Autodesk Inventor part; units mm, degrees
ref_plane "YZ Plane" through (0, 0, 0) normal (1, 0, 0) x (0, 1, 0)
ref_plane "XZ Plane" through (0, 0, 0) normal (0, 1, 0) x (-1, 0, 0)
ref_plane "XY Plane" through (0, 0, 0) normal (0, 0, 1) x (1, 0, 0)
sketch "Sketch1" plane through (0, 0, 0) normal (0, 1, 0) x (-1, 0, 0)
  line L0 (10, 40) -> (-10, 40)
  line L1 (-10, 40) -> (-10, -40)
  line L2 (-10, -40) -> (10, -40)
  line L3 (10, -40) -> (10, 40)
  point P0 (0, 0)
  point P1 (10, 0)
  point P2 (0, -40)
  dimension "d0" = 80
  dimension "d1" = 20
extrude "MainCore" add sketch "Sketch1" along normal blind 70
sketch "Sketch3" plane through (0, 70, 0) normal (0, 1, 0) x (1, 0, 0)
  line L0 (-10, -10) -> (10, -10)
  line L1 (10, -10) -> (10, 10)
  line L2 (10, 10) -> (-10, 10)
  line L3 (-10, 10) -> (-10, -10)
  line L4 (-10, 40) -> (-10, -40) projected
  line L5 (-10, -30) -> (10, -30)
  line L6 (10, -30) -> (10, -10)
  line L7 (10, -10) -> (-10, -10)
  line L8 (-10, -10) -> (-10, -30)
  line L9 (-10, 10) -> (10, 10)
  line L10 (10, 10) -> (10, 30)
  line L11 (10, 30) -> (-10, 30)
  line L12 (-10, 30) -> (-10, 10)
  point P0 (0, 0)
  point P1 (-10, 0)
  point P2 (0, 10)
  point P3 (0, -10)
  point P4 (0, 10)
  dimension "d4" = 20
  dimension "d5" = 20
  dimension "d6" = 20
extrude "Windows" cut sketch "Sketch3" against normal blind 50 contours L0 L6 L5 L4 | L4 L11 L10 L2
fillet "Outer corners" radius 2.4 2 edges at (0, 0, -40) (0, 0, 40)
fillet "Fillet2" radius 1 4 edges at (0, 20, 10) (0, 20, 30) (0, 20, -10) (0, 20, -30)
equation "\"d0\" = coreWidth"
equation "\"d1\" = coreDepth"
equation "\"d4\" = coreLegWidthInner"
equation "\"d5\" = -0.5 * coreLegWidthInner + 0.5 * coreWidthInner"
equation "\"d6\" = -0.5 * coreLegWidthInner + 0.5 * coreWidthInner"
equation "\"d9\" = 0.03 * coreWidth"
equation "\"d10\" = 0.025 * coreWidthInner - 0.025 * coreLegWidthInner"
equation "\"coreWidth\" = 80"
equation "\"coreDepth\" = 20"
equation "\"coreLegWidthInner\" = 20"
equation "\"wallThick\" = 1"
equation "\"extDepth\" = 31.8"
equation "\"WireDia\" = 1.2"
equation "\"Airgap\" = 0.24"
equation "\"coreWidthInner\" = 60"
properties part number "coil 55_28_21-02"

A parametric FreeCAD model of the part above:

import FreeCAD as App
import Part
import Sketcher
from FreeCAD import Vector
Q = App.Units.Quantity


def edges_at(feature, points):
    """Names of the edges that pass closest to the given points."""
    edges = feature.Shape.Edges
    near = lambda p: min(range(len(edges)), key=lambda i: edges[i].distToShape(Part.Vertex(*p))[0])
    return sorted({f"Edge{near(p) + 1}" for p in points})


def add_polygon(sketch, points):
    """Adds a closed chain of lines whose ends are joined by coincident constraints."""
    first, n = sketch.GeometryCount, len(points)
    for a, b in zip(points, points[1:] + points[:1]):
        sketch.addGeometry(Part.LineSegment(App.Vector(*a, 0), App.Vector(*b, 0)), False)
    for i in range(n):
        sketch.addConstraint(Sketcher.Constraint("Coincident", first + i, 2, first + (i + 1) % n, 1))

doc = App.newDocument("Part")
body = doc.addObject("PartDesign::Body", "Body")

sketch1 = body.newObject("Sketcher::SketchObject", "Sketch")
sketch1.AttachmentSupport = (doc.getObject("XZ_Plane"), [""])
sketch1.MapMode = "FlatFace"
add_polygon(sketch1, [(-10, -40), (-10, 40), (10, 40), (10, -40)])
sketch1.addConstraint(Sketcher.Constraint("Vertical", 0))
sketch1.addConstraint(Sketcher.Constraint("Horizontal", 1))
sketch1.addConstraint(Sketcher.Constraint("Vertical", 2))
sketch1.addConstraint(Sketcher.Constraint("Horizontal", 3))
sketch1.addConstraint(Sketcher.Constraint("Symmetric", 0, 2, 2, 2, -1, 1))
sketch1.addConstraint(Sketcher.Constraint("DistanceX", 1, 1, 1, 2, Q("20 mm")))
sketch1.addConstraint(Sketcher.Constraint("DistanceY", 0, 1, 0, 2, Q("80 mm")))
pad1 = body.newObject("PartDesign::Pad", "Pad")
pad1.Profile = sketch1
pad1.Length = 70
pad1.Reversed = True

sketch2 = body.newObject("Sketcher::SketchObject", "Sketch001")
sketch2.AttachmentSupport = (doc.getObject("XZ_Plane"), [""])
sketch2.MapMode = "FlatFace"
sketch2.AttachmentOffset = App.Placement(Vector(0, 0, -70), App.Rotation())
add_polygon(sketch2, [(10, 10), (-10, 10), (-10, 30), (10, 30)])
add_polygon(sketch2, [(-10, -30), (-10, -10), (10, -10), (10, -30)])
sketch2.addConstraint(Sketcher.Constraint("Horizontal", 0))
sketch2.addConstraint(Sketcher.Constraint("Vertical", 1))
sketch2.addConstraint(Sketcher.Constraint("Horizontal", 2))
sketch2.addConstraint(Sketcher.Constraint("Vertical", 3))
sketch2.addConstraint(Sketcher.Constraint("Vertical", 4))
sketch2.addConstraint(Sketcher.Constraint("Horizontal", 5))
sketch2.addConstraint(Sketcher.Constraint("Vertical", 6))
sketch2.addConstraint(Sketcher.Constraint("Horizontal", 7))
sketch2.addConstraint(Sketcher.Constraint("Symmetric", 3, 2, 4, 2, -1, 1))
sketch2.addConstraint(Sketcher.Constraint("Symmetric", 1, 2, 6, 2, -1, 1))
sketch2.addConstraint(Sketcher.Constraint("Vertical", 1, 2, 4, 2))
sketch2.addConstraint(Sketcher.Constraint("Equal", 7, 1))
sketch2.addConstraint(Sketcher.Constraint("DistanceX", 0, 2, 0, 1, Q("20 mm")))
sketch2.addConstraint(Sketcher.Constraint("DistanceY", 4, 2, 0, 2, Q("20 mm")))
pocket1 = body.newObject("PartDesign::Pocket", "Pocket")
pocket1.Profile = sketch2
pocket1.Length = 50
pocket1.Reversed = True
doc.recompute()

fillet = body.newObject("PartDesign::Fillet", "Fillet")
fillet.Base = (pocket1, edges_at(pocket1, [(0, 0, -40), (0, 0, 40)]))
fillet.Radius = 2.4
doc.recompute()

fillet2 = body.newObject("PartDesign::Fillet", "Fillet001")
fillet2.Base = (fillet, edges_at(fillet, [
    (0, 20, 10),
    (0, 20, 30),
    (0, 20, -10),
    (0, 20, -30),
]))
fillet2.Radius = 1

doc.recompute()
